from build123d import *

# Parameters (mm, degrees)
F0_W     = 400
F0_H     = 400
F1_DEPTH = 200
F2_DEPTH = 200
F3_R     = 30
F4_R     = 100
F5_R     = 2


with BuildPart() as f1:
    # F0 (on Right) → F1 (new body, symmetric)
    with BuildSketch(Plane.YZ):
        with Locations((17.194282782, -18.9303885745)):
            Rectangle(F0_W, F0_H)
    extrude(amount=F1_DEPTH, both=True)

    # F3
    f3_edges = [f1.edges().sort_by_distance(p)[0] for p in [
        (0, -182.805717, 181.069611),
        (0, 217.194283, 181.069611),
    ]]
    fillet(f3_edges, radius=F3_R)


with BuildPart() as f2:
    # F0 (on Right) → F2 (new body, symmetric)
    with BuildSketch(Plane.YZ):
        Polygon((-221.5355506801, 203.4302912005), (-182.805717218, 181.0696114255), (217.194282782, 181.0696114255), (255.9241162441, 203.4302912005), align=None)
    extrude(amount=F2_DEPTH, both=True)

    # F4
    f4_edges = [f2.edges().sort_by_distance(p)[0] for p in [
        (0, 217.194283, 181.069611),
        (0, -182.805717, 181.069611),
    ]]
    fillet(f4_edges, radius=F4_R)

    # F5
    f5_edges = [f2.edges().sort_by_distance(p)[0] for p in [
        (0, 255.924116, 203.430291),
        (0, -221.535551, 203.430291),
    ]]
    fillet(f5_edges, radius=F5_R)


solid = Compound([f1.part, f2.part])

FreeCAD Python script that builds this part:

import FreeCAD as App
import Part
import Sketcher
Q = App.Units.Quantity


def edges_at(feature, points):
    """Names of the edges that pass closest to the given points."""
    edges = feature.Shape.Edges
    near = lambda p: min(range(len(edges)), key=lambda i: edges[i].distToShape(Part.Vertex(*p))[0])
    return sorted({f"Edge{near(p) + 1}" for p in points})

doc = App.newDocument("Part")
body = doc.addObject("PartDesign::Body", "Body")

# Sketch on YZ plane
sketch1 = doc.addObject("Sketcher::SketchObject", "Sketch")
body.addObject(sketch1)
sketch1.AttachmentSupport = (doc.YZ_Plane, [""])
sketch1.MapMode = "FlatFace"
sketch1.addGeometry(Part.LineSegment(App.Vector(-182.805717, 181.069611, 0), App.Vector(-182.805717, -218.930389, 0)), False)
sketch1.addGeometry(Part.LineSegment(App.Vector(-182.805717, -218.930389, 0), App.Vector(217.194283, -218.930389, 0)), False)
sketch1.addGeometry(Part.LineSegment(App.Vector(217.194283, -218.930389, 0), App.Vector(217.194283, 181.069611, 0)), False)
sketch1.addGeometry(Part.LineSegment(App.Vector(217.194283, 181.069611, 0), App.Vector(-182.805717, 181.069611, 0)), False)
sketch1.addConstraint(Sketcher.Constraint("Coincident", 0, 2, 1, 1))
sketch1.addConstraint(Sketcher.Constraint("Coincident", 1, 2, 2, 1))
sketch1.addConstraint(Sketcher.Constraint("Coincident", 2, 2, 3, 1))
sketch1.addConstraint(Sketcher.Constraint("Coincident", 3, 2, 0, 1))
sketch1.addConstraint(Sketcher.Constraint("Vertical", 0))
sketch1.addConstraint(Sketcher.Constraint("Horizontal", 1))
sketch1.addConstraint(Sketcher.Constraint("Vertical", 2))
sketch1.addConstraint(Sketcher.Constraint("Horizontal", 3))
sketch1.addConstraint(Sketcher.Constraint("Equal", 3, 0))
sketch1.addConstraint(Sketcher.Constraint("DistanceX", 1, 1, 1, 2, 400.0))
sketch1.addConstraint(Sketcher.Constraint("DistanceY", 0, 2, -1, 1, 218.930389))
sketch1.addConstraint(Sketcher.Constraint("DistanceX", 0, 2, -1, 1, 182.805717))
pad1 = doc.addObject("PartDesign::Pad", "Pad")
body.addObject(pad1)
pad1.Profile = sketch1
pad1.Length = 400
pad1.Midplane = True
doc.recompute()

fillet = doc.addObject("PartDesign::Fillet", "Fillet")
body.addObject(fillet)
fillet.Base = (pad1, edges_at(pad1, [(0, -182.806, 181.07), (0, 217.194, 181.07)]))
fillet.Radius = 30
body2 = doc.addObject("PartDesign::Body", "Body001")

# Sketch on YZ plane
sketch2 = doc.addObject("Sketcher::SketchObject", "Sketch001")
body2.addObject(sketch2)
sketch2.AttachmentSupport = (doc.getObject("YZ_Plane001"), [""])
sketch2.MapMode = "FlatFace"
sketch2.addGeometry(Part.LineSegment(App.Vector(-221.535551, 203.430291, 0), App.Vector(-182.805717, 181.069611, 0)), False)
sketch2.addGeometry(Part.LineSegment(App.Vector(-182.805717, 181.069611, 0), App.Vector(217.194283, 181.069611, 0)), False)
sketch2.addGeometry(Part.LineSegment(App.Vector(217.194283, 181.069611, 0), App.Vector(255.924116, 203.430291, 0)), False)
sketch2.addGeometry(Part.LineSegment(App.Vector(255.924116, 203.430291, 0), App.Vector(-221.535551, 203.430291, 0)), False)
sketch2.addConstraint(Sketcher.Constraint("Coincident", 0, 2, 1, 1))
sketch2.addConstraint(Sketcher.Constraint("Coincident", 1, 2, 2, 1))
sketch2.addConstraint(Sketcher.Constraint("Coincident", 2, 2, 3, 1))
sketch2.addConstraint(Sketcher.Constraint("Coincident", 3, 2, 0, 1))
sketch2.addConstraint(Sketcher.Constraint("Horizontal", 1))
sketch2.addConstraint(Sketcher.Constraint("Horizontal", 3))
sketch2.addConstraint(Sketcher.Constraint("Equal", 0, 2))
sketch2.addConstraint(Sketcher.Constraint("DistanceX", 1, 1, 1, 2, 400.0))
sketch2.addConstraint(Sketcher.Constraint("Angle", 0, Q("-30 deg")))
sketch2.addConstraint(Sketcher.Constraint("Distance", 0, 44.72136))
sketch2.addConstraint(Sketcher.Constraint("DistanceY", -1, 1, 0, 2, 181.069611))
sketch2.addConstraint(Sketcher.Constraint("DistanceX", 3, 2, -1, 1, 221.535551))
pad2 = doc.addObject("PartDesign::Pad", "Pad001")
body2.addObject(pad2)
pad2.Profile = sketch2
pad2.Length = 400
pad2.Midplane = True
doc.recompute()

fillet2 = doc.addObject("PartDesign::Fillet", "Fillet001")
body2.addObject(fillet2)
fillet2.Base = (pad2, edges_at(pad2, [(0, 217.194, 181.07), (0, -182.806, 181.07)]))
fillet2.Radius = 100
doc.recompute()

fillet3 = doc.addObject("PartDesign::Fillet", "Fillet002")
body2.addObject(fillet3)
fillet3.Base = (fillet2, edges_at(fillet2, [(0, 255.924, 203.43), (0, -221.536, 203.43)]))
fillet3.Radius = 2

doc.recompute()
